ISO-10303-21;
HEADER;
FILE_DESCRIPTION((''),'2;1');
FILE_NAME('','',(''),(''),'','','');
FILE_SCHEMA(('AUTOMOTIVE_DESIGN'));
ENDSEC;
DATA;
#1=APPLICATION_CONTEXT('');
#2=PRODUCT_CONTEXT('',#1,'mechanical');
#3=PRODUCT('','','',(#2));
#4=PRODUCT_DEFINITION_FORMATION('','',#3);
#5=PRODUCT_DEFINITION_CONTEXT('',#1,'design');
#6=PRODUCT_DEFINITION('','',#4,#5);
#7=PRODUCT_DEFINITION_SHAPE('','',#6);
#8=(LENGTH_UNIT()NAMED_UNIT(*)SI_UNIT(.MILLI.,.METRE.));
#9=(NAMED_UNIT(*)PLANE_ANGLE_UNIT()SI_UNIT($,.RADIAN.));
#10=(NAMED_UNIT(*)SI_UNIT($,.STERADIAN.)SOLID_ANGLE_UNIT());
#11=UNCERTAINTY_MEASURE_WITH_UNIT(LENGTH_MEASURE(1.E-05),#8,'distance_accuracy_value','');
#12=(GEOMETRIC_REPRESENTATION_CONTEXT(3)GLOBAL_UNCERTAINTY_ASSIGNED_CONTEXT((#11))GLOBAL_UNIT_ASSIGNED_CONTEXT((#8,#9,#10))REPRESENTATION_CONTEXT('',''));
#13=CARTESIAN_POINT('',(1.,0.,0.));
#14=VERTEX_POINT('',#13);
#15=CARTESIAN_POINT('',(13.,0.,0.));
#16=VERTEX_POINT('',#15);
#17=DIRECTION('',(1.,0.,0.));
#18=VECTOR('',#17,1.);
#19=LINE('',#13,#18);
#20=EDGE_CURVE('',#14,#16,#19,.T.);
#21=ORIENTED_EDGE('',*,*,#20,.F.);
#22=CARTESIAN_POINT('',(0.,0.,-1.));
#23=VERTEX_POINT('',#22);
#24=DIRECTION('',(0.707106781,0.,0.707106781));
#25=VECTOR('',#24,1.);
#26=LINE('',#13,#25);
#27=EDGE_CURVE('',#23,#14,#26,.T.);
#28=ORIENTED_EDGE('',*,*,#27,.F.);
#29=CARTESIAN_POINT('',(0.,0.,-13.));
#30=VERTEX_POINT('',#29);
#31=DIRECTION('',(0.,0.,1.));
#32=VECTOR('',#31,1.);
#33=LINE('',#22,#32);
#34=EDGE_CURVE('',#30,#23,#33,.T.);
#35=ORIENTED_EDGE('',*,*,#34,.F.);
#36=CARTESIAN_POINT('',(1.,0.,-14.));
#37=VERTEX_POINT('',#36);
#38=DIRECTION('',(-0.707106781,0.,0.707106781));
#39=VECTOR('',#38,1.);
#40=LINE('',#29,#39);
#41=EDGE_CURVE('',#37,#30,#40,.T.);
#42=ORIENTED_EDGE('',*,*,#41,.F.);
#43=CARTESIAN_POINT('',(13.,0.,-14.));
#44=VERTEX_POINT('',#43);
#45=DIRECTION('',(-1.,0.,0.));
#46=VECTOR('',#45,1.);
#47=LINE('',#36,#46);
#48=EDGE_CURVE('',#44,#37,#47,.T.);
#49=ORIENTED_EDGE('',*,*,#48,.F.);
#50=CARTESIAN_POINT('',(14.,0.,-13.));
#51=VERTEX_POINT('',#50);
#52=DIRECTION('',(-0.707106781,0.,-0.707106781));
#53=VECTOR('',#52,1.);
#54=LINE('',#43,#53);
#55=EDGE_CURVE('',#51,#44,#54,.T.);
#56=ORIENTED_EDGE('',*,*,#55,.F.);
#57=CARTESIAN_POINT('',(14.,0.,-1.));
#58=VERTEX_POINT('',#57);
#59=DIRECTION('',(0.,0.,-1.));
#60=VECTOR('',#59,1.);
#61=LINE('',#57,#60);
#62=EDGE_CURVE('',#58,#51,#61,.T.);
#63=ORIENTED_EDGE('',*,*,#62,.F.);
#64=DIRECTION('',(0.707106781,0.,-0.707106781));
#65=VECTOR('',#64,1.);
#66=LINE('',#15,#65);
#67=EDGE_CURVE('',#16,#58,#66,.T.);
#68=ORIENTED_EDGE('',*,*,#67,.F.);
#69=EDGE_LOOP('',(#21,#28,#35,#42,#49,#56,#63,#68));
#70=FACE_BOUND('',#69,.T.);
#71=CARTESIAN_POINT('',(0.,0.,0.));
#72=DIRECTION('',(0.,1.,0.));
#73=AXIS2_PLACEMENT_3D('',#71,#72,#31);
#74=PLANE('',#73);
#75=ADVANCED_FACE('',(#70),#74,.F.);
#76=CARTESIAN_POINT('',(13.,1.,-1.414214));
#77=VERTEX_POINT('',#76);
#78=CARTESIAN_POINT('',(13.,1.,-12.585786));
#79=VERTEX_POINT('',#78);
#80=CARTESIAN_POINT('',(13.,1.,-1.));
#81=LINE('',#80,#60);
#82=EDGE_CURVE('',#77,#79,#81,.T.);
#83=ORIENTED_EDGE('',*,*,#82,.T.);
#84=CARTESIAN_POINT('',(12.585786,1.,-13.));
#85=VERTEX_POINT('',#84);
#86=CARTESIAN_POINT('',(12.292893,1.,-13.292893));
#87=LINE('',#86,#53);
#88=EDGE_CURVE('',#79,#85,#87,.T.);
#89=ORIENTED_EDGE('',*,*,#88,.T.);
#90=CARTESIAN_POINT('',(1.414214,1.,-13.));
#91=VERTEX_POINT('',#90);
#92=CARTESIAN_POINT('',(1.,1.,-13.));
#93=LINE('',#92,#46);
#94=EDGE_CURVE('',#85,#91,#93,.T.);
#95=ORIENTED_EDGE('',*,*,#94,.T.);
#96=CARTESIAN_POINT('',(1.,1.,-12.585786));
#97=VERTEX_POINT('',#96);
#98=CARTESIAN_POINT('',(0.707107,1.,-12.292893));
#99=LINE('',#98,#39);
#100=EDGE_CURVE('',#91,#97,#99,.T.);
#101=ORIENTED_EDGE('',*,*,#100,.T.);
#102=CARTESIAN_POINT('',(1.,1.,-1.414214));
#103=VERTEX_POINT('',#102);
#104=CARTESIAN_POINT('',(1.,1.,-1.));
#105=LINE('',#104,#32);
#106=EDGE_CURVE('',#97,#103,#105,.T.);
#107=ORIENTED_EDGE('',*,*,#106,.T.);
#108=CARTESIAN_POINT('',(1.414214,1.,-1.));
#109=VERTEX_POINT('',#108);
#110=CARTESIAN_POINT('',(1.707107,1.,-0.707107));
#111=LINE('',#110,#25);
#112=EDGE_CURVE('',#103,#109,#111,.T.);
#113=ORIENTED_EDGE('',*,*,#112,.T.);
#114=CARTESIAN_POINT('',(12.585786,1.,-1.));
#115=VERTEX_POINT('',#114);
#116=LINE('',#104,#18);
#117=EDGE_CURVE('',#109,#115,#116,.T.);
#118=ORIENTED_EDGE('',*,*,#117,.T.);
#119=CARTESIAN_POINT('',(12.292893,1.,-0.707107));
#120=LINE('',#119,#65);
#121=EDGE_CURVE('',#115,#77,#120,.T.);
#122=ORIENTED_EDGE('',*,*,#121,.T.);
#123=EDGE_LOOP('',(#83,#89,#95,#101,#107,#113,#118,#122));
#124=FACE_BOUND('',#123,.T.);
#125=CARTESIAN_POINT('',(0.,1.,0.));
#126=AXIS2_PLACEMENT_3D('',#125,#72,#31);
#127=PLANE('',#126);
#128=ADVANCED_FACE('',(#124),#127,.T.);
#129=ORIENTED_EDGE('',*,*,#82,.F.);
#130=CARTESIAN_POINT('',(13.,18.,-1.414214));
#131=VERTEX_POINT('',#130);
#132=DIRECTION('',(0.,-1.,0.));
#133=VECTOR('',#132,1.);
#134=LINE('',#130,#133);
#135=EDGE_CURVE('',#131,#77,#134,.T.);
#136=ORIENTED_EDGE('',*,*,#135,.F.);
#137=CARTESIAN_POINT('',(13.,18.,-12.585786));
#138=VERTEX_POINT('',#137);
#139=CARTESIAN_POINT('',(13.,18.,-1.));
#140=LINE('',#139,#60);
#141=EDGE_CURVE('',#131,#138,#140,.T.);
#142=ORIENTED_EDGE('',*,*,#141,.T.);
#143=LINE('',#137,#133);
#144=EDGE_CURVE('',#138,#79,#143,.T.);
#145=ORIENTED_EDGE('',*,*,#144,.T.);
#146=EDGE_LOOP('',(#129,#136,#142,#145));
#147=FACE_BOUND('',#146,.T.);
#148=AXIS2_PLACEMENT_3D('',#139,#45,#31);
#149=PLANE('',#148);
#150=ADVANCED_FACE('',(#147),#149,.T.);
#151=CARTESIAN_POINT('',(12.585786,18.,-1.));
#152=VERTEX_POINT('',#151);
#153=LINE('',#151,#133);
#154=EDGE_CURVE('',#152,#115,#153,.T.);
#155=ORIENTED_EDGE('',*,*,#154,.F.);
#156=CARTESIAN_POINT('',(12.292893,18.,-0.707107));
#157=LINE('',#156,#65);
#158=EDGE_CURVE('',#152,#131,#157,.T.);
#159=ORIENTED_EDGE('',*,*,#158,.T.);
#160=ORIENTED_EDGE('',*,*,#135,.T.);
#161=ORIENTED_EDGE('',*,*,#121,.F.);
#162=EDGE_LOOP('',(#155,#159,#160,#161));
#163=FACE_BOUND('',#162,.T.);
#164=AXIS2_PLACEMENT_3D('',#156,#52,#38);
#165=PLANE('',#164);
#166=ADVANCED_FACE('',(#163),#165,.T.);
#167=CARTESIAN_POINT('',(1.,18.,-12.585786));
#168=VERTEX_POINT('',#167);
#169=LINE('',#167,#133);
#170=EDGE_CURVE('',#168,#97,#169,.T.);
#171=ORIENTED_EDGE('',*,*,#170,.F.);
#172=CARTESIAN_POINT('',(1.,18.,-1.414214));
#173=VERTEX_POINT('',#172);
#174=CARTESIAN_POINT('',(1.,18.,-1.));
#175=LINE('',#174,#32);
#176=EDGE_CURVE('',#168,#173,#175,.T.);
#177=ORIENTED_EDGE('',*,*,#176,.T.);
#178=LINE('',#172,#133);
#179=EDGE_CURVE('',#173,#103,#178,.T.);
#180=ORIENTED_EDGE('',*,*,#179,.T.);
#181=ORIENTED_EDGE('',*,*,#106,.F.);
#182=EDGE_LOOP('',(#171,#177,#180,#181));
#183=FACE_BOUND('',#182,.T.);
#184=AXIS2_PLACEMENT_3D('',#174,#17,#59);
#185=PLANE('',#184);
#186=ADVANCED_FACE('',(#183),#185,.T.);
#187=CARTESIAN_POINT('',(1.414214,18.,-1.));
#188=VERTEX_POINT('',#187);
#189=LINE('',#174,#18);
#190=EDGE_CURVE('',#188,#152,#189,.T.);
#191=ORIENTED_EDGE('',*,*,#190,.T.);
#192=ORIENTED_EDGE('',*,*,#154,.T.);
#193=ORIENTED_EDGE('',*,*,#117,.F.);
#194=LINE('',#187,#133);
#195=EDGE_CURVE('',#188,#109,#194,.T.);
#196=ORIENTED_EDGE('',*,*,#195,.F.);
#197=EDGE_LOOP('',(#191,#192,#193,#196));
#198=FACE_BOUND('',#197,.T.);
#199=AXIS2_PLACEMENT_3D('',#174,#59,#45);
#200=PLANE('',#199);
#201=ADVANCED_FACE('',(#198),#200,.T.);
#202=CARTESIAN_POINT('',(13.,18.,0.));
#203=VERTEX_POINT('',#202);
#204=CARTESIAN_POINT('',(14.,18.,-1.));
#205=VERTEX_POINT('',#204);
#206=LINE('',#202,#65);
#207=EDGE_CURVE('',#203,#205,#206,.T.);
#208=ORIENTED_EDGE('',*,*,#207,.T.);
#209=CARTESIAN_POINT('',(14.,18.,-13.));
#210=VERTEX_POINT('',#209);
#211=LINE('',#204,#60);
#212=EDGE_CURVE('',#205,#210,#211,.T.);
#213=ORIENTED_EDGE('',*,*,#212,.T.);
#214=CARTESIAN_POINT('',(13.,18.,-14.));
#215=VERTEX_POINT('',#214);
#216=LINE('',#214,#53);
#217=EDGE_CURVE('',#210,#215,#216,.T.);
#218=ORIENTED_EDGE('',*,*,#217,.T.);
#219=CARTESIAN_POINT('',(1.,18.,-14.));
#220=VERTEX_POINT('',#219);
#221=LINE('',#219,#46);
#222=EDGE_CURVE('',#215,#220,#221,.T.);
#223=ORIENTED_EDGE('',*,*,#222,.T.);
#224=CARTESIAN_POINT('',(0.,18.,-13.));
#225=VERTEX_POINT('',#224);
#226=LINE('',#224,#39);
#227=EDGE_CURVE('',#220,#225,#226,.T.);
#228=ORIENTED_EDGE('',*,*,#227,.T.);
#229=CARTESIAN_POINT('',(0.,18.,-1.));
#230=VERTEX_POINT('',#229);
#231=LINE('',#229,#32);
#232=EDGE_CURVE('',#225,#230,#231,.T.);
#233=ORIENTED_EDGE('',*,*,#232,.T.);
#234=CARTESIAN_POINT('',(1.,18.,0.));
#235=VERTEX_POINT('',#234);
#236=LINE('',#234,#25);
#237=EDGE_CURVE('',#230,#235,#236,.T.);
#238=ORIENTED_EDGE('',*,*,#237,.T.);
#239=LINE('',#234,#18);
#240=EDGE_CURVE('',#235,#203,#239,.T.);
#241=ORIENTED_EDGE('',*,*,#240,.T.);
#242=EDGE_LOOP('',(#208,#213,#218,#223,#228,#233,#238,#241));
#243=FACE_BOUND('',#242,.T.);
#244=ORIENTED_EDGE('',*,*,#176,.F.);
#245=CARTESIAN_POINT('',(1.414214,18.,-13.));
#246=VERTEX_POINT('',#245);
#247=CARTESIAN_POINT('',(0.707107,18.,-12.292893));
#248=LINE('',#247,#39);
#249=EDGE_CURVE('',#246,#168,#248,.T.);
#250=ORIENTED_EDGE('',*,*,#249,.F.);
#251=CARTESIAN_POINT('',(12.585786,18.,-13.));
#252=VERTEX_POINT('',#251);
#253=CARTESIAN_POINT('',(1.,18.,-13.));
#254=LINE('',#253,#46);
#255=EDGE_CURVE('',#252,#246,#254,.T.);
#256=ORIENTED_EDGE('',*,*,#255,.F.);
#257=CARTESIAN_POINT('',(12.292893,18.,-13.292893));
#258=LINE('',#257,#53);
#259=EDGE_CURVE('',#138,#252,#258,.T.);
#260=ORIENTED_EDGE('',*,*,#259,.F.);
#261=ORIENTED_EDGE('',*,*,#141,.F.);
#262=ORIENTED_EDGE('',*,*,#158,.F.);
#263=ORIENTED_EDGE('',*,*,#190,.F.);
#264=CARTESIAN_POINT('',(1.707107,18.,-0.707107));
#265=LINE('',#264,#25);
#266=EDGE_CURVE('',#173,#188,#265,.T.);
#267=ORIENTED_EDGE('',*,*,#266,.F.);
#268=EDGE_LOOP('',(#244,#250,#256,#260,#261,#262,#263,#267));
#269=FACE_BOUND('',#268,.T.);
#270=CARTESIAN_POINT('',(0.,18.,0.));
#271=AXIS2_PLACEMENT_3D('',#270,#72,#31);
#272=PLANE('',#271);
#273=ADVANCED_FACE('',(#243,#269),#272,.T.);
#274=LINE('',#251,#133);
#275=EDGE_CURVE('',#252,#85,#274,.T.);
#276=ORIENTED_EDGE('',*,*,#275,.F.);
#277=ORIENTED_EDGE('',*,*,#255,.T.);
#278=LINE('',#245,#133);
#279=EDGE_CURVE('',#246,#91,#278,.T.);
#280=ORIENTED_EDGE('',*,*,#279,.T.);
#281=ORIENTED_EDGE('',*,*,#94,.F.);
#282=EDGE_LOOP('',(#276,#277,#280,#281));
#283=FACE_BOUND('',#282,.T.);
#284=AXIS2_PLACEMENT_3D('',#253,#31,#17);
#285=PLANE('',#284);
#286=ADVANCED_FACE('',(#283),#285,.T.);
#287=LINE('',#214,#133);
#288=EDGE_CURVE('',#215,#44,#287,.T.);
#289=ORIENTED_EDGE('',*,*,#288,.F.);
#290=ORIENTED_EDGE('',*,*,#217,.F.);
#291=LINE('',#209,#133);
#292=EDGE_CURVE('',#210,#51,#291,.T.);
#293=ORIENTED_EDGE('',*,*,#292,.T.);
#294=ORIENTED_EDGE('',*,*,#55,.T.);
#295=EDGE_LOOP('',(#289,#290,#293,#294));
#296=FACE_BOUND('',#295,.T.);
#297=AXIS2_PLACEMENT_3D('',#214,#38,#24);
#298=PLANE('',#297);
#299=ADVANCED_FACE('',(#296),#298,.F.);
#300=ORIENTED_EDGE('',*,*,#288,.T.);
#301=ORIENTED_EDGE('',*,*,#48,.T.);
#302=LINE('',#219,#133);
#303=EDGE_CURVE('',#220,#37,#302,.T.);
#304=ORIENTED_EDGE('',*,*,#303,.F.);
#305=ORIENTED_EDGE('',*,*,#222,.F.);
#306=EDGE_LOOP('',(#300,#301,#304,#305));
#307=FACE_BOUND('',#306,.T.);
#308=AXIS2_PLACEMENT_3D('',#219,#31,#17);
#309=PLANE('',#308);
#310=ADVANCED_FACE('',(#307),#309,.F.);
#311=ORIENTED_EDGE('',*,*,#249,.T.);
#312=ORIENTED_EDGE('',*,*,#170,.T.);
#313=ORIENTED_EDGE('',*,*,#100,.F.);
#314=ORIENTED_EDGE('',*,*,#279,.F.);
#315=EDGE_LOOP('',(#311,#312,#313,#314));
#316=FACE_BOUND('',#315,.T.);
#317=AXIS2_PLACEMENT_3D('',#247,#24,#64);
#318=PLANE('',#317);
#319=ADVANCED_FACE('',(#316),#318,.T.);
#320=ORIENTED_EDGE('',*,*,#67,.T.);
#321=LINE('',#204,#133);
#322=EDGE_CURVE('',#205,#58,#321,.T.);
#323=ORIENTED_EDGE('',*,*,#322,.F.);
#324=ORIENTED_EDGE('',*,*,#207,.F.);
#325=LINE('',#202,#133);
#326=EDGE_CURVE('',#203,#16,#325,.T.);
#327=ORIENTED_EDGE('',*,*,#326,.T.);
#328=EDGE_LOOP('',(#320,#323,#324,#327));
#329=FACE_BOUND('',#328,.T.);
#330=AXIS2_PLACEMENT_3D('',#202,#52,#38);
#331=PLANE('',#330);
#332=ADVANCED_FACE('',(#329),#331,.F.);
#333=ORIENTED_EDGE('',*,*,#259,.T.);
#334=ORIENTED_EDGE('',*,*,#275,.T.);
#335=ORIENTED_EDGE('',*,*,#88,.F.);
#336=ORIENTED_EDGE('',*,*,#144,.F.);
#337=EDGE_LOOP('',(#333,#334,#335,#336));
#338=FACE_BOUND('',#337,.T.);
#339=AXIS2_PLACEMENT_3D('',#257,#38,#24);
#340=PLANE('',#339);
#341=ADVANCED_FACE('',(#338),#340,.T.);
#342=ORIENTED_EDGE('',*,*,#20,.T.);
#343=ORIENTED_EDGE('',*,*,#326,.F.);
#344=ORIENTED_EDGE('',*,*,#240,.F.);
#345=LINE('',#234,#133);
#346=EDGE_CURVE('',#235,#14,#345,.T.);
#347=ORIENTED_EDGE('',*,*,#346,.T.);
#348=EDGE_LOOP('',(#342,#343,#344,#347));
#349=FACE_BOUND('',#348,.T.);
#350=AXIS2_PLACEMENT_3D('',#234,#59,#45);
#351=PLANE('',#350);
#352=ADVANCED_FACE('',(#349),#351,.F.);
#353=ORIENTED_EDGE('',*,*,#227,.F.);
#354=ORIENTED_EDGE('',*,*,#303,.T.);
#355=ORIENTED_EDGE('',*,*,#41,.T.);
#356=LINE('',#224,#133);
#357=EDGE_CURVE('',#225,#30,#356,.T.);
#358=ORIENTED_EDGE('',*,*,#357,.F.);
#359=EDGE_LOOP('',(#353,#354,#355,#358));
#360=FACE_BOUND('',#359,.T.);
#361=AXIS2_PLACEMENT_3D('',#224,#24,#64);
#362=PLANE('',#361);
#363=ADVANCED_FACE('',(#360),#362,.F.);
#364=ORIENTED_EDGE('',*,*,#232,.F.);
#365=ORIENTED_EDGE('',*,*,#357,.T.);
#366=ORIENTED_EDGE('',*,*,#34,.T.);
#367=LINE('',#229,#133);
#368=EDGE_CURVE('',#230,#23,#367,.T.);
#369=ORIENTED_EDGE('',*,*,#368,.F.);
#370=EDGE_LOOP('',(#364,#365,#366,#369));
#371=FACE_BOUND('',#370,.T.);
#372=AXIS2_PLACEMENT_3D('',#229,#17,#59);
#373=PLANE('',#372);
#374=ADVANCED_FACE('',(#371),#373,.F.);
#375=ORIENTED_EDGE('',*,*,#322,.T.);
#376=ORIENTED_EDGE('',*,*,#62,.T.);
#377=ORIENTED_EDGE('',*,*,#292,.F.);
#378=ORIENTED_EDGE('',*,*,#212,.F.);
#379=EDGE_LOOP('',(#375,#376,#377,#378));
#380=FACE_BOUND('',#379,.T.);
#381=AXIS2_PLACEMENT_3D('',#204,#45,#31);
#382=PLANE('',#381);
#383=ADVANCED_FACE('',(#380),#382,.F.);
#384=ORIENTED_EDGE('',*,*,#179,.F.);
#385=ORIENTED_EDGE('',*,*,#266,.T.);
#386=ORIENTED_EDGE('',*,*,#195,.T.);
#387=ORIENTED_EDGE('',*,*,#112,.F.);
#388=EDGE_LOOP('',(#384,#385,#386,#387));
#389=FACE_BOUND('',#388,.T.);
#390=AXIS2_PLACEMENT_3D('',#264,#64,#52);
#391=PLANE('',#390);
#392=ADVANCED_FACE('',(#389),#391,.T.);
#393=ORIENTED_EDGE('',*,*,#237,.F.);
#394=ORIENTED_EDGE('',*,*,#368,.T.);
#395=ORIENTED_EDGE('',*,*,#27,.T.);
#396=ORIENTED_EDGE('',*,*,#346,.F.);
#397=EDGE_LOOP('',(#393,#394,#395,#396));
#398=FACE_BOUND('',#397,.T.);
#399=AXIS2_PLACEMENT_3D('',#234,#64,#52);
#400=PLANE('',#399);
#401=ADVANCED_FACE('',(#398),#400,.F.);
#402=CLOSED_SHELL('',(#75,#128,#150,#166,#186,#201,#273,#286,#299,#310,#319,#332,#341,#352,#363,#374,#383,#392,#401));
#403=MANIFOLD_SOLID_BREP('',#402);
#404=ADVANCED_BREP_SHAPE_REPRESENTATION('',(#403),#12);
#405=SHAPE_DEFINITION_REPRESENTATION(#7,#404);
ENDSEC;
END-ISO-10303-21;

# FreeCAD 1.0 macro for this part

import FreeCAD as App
import Part
import Sketcher

V = App.Vector
Q = App.Units.Quantity


def faces_at(feature, points):
    """Names of the faces that lie closest to the given points."""
    faces = feature.Shape.Faces
    near = lambda p: min(range(len(faces)), key=lambda i: faces[i].distToShape(Part.Vertex(*p))[0])
    return sorted({f"Face{near(p) + 1}" for p in points})

doc = App.newDocument("Part")
body = doc.addObject("PartDesign::Body", "Body")

sketch1 = body.newObject("Sketcher::SketchObject", "Sketch")
sketch1.AttachmentSupport = (doc.getObject("XZ_Plane"), [""])
sketch1.MapMode = "FlatFace"
sketch1.addGeometry(Part.LineSegment(V(1, -14, 0), V(0, -13, 0)), False)
sketch1.addGeometry(Part.LineSegment(V(0, -13, 0), V(0, -1, 0)), False)
sketch1.addGeometry(Part.LineSegment(V(0, -1, 0), V(1, 0, 0)), False)
sketch1.addGeometry(Part.LineSegment(V(1, 0, 0), V(13, 0, 0)), False)
sketch1.addGeometry(Part.LineSegment(V(13, 0, 0), V(14, -1, 0)), False)
sketch1.addGeometry(Part.LineSegment(V(14, -1, 0), V(14, -13, 0)), False)
sketch1.addGeometry(Part.LineSegment(V(14, -13, 0), V(13, -14, 0)), False)
sketch1.addGeometry(Part.LineSegment(V(13, -14, 0), V(1, -14, 0)), False)
sketch1.addConstraint(Sketcher.Constraint("Coincident", 0, 2, 1, 1))
sketch1.addConstraint(Sketcher.Constraint("Coincident", 1, 2, 2, 1))
sketch1.addConstraint(Sketcher.Constraint("Coincident", 2, 2, 3, 1))
sketch1.addConstraint(Sketcher.Constraint("Coincident", 3, 2, 4, 1))
sketch1.addConstraint(Sketcher.Constraint("Coincident", 4, 2, 5, 1))
sketch1.addConstraint(Sketcher.Constraint("Coincident", 5, 2, 6, 1))
sketch1.addConstraint(Sketcher.Constraint("Coincident", 6, 2, 7, 1))
sketch1.addConstraint(Sketcher.Constraint("Coincident", 7, 2, 0, 1))
sketch1.addConstraint(Sketcher.Constraint("Vertical", 1))
sketch1.addConstraint(Sketcher.Constraint("Horizontal", 3))
sketch1.addConstraint(Sketcher.Constraint("Vertical", 5))
sketch1.addConstraint(Sketcher.Constraint("Horizontal", 7))
sketch1.addConstraint(Sketcher.Constraint("PointOnObject", 0, 2, -2))
sketch1.addConstraint(Sketcher.Constraint("PointOnObject", 2, 2, -1))
sketch1.addConstraint(Sketcher.Constraint("Perpendicular", 0, 2))
sketch1.addConstraint(Sketcher.Constraint("Perpendicular", 2, 4))
sketch1.addConstraint(Sketcher.Constraint("Perpendicular", 4, 6))
sketch1.addConstraint(Sketcher.Constraint("Horizontal", 1, 2, 4, 2))
sketch1.addConstraint(Sketcher.Constraint("Horizontal", 0, 2, 5, 2))
sketch1.addConstraint(Sketcher.Constraint("Vertical", 3, 2, 6, 2))
sketch1.addConstraint(Sketcher.Constraint("Vertical", 2, 2, 7, 2))
sketch1.addConstraint(Sketcher.Constraint("Equal", 7, 1))
sketch1.addConstraint(Sketcher.Constraint("DistanceX", 3, 1, 3, 2, Q("12 mm")))
sketch1.addConstraint(Sketcher.Constraint("DistanceY", 0, 2, -1, 1, Q("13 mm")))
pad1 = body.newObject("PartDesign::Pad", "Pad")
pad1.Profile = sketch1
pad1.Length = 18
pad1.Reversed = True
doc.recompute()

thickness = body.newObject("PartDesign::Thickness", "Thickness")
thickness.Base = (pad1, faces_at(pad1, [(7, 18, -7)]))
thickness.Value = 1
thickness.Reversed = True
thickness.Join = "Intersection"

doc.recompute()
